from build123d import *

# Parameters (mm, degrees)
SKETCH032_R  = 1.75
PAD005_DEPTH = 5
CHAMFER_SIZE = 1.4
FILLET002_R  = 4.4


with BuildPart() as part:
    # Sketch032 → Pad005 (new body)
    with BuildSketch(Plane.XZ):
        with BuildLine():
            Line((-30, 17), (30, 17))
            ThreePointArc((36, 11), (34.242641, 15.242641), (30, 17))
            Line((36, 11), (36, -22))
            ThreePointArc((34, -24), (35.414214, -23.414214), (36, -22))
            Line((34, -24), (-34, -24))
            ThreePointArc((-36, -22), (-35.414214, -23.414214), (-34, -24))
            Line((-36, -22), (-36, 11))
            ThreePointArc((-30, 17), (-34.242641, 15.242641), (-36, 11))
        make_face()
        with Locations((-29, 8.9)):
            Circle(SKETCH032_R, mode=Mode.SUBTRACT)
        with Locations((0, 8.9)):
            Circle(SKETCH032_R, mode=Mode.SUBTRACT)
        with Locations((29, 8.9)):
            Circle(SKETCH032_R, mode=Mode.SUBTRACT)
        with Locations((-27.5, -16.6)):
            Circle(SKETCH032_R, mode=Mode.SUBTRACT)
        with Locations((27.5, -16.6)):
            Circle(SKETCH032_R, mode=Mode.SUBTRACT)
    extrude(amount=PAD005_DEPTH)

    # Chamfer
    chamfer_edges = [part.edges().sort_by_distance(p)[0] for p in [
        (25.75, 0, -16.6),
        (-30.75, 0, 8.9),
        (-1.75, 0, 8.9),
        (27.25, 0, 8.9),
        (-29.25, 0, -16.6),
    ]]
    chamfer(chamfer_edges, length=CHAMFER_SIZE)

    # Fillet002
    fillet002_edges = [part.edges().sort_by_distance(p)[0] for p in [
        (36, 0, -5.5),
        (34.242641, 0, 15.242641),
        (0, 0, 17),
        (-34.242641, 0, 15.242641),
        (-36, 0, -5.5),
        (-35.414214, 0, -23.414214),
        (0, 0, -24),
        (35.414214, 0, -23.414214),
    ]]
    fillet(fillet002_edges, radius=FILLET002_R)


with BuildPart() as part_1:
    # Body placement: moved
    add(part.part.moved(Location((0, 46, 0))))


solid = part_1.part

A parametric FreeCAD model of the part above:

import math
import FreeCAD as App
import Part
import Sketcher
from FreeCAD import Vector


def edges_at(feature, points):
    """Names of the edges that pass closest to the given points."""
    edges = feature.Shape.Edges
    near = lambda p: min(range(len(edges)), key=lambda i: edges[i].distToShape(Part.Vertex(*p))[0])
    return sorted({f"Edge{near(p) + 1}" for p in points})

doc = App.newDocument("Part")
body = doc.addObject("PartDesign::Body", "Body")

# Sketch on XZ plane
sketch1 = doc.addObject("Sketcher::SketchObject", "Sketch")
body.addObject(sketch1)
sketch1.AttachmentSupport = (doc.XZ_Plane, [""])
sketch1.MapMode = "FlatFace"
sketch1.addGeometry([
    Part.LineSegment(Vector(30, 17, 0), Vector(-30, 17, 0)),  # 0
    Part.ArcOfCircle(Part.Circle(Vector(-30, 11, 0), Vector(0, 0, 1), 6), math.radians(90), math.radians(180)),  # 1
    Part.LineSegment(Vector(-36, 11, 0), Vector(-36, -22, 0)),  # 2
    Part.ArcOfCircle(Part.Circle(Vector(-34, -22, 0), Vector(0, 0, 1), 2), math.radians(180), math.radians(270)),  # 3
    Part.LineSegment(Vector(-34, -24, 0), Vector(34, -24, 0)),  # 4
    Part.ArcOfCircle(Part.Circle(Vector(34, -22, 0), Vector(0, 0, 1), 2), math.radians(-90), math.radians(0)),  # 5
    Part.LineSegment(Vector(36, -22, 0), Vector(36, 11, 0)),  # 6
    Part.ArcOfCircle(Part.Circle(Vector(30, 11, 0), Vector(0, 0, 1), 6), math.radians(0), math.radians(90)),  # 7
    Part.Circle(Vector(27.5, -16.6, 0), Vector(0, 0, 1), 1.8),  # 8
    Part.Circle(Vector(-27.5, -16.6, 0), Vector(0, 0, 1), 1.8),  # 9
    Part.Circle(Vector(29, 8.9, 0), Vector(0, 0, 1), 1.8),  # 10
    Part.Circle(Vector(0, 8.9, 0), Vector(0, 0, 1), 1.8),  # 11
    Part.Circle(Vector(-29, 8.9, 0), Vector(0, 0, 1), 1.8),  # 12
], False)
sketch1.addConstraint([
    Sketcher.Constraint("Tangent", 0, 2, 1, 1),
    Sketcher.Constraint("Tangent", 1, 2, 2, 1),
    Sketcher.Constraint("Tangent", 2, 2, 3, 1),
    Sketcher.Constraint("Tangent", 3, 2, 4, 1),
    Sketcher.Constraint("Tangent", 4, 2, 5, 1),
    Sketcher.Constraint("Tangent", 5, 2, 6, 1),
    Sketcher.Constraint("Tangent", 6, 2, 7, 1),
    Sketcher.Constraint("Tangent", 7, 2, 0, 1),
    Sketcher.Constraint("Horizontal", 0),
    Sketcher.Constraint("Vertical", 2),
    Sketcher.Constraint("Horizontal", 4),
    Sketcher.Constraint("Vertical", 6),
    Sketcher.Constraint("Equal", 3, 5),
    Sketcher.Constraint("Equal", 1, 7),
    Sketcher.Constraint("Equal", 8, 9),
    Sketcher.Constraint("Equal", 9, 10),
    Sketcher.Constraint("Equal", 10, 11),
    Sketcher.Constraint("Equal", 11, 12),
    Sketcher.Constraint("Symmetric", 8, 3, 9, 3, -2),
    Sketcher.Constraint("Symmetric", 10, 3, 12, 3, -2),
    Sketcher.Constraint("PointOnObject", 11, 3, -2),
    Sketcher.Constraint("Horizontal", 10, 3, 11, 3),
    Sketcher.Constraint("Radius", 1, 5.999999),
    Sketcher.Constraint("Radius", 3, 1.999999),
    Sketcher.Constraint("Diameter", 8, 3.5),
    Sketcher.Constraint("DistanceX", 0, 2, 0, 1, 60.0),
    Sketcher.Constraint("DistanceY", 2, 2, 2, 1, 33.0),
    Sketcher.Constraint("DistanceX", 1, 3, -1, 1, 30.000001),
    Sketcher.Constraint("DistanceY", -1, 1, 1, 3, 11.000001),
    Sketcher.Constraint("DistanceX", -1, 1, 10, 3, 29.0),
    Sketcher.Constraint("DistanceX", 9, 3, 8, 3, 55.0),
    Sketcher.Constraint("DistanceY", 8, 3, -1, 1, 16.6),
    Sketcher.Constraint("DistanceY", -1, 1, 10, 3, 8.9),
])
pad1 = doc.addObject("PartDesign::Pad", "Pad")
body.addObject(pad1)
pad1.Profile = sketch1
pad1.Length = 5
doc.recompute()

chamfer = doc.addObject("PartDesign::Chamfer", "Chamfer")
body.addObject(chamfer)
chamfer.Base = (pad1, edges_at(pad1, [
    (25.75, 0, -16.6),
    (-30.75, 0, 8.9),
    (-1.75, 0, 8.9),
    (27.25, 0, 8.9),
    (-29.25, 0, -16.6),
]))
chamfer.Size = 1.4
doc.recompute()

fillet = doc.addObject("PartDesign::Fillet", "Fillet")
body.addObject(fillet)
fillet.Base = (chamfer, edges_at(chamfer, [
    (36, 0, -5.5),
    (34.243, 0, 15.243),
    (0, 0, 17),
    (-34.243, 0, 15.243),
    (-36, 0, -5.5),
    (-35.414, 0, -23.414),
    (0, 0, -24),
    (35.414, 0, -23.414),
]))
fillet.Radius = 4.4
body2 = doc.addObject("PartDesign::Body", "Body001")
doc.recompute()

body.Placement = App.Placement(Vector(0, 46, 0), App.Rotation(Vector(0, 0, 1), 0))
boolean = doc.addObject("PartDesign::Boolean", "Boolean")
body2.addObject(boolean)
boolean.Type = "Fuse"
boolean.addObjects([body])

doc.recompute()
